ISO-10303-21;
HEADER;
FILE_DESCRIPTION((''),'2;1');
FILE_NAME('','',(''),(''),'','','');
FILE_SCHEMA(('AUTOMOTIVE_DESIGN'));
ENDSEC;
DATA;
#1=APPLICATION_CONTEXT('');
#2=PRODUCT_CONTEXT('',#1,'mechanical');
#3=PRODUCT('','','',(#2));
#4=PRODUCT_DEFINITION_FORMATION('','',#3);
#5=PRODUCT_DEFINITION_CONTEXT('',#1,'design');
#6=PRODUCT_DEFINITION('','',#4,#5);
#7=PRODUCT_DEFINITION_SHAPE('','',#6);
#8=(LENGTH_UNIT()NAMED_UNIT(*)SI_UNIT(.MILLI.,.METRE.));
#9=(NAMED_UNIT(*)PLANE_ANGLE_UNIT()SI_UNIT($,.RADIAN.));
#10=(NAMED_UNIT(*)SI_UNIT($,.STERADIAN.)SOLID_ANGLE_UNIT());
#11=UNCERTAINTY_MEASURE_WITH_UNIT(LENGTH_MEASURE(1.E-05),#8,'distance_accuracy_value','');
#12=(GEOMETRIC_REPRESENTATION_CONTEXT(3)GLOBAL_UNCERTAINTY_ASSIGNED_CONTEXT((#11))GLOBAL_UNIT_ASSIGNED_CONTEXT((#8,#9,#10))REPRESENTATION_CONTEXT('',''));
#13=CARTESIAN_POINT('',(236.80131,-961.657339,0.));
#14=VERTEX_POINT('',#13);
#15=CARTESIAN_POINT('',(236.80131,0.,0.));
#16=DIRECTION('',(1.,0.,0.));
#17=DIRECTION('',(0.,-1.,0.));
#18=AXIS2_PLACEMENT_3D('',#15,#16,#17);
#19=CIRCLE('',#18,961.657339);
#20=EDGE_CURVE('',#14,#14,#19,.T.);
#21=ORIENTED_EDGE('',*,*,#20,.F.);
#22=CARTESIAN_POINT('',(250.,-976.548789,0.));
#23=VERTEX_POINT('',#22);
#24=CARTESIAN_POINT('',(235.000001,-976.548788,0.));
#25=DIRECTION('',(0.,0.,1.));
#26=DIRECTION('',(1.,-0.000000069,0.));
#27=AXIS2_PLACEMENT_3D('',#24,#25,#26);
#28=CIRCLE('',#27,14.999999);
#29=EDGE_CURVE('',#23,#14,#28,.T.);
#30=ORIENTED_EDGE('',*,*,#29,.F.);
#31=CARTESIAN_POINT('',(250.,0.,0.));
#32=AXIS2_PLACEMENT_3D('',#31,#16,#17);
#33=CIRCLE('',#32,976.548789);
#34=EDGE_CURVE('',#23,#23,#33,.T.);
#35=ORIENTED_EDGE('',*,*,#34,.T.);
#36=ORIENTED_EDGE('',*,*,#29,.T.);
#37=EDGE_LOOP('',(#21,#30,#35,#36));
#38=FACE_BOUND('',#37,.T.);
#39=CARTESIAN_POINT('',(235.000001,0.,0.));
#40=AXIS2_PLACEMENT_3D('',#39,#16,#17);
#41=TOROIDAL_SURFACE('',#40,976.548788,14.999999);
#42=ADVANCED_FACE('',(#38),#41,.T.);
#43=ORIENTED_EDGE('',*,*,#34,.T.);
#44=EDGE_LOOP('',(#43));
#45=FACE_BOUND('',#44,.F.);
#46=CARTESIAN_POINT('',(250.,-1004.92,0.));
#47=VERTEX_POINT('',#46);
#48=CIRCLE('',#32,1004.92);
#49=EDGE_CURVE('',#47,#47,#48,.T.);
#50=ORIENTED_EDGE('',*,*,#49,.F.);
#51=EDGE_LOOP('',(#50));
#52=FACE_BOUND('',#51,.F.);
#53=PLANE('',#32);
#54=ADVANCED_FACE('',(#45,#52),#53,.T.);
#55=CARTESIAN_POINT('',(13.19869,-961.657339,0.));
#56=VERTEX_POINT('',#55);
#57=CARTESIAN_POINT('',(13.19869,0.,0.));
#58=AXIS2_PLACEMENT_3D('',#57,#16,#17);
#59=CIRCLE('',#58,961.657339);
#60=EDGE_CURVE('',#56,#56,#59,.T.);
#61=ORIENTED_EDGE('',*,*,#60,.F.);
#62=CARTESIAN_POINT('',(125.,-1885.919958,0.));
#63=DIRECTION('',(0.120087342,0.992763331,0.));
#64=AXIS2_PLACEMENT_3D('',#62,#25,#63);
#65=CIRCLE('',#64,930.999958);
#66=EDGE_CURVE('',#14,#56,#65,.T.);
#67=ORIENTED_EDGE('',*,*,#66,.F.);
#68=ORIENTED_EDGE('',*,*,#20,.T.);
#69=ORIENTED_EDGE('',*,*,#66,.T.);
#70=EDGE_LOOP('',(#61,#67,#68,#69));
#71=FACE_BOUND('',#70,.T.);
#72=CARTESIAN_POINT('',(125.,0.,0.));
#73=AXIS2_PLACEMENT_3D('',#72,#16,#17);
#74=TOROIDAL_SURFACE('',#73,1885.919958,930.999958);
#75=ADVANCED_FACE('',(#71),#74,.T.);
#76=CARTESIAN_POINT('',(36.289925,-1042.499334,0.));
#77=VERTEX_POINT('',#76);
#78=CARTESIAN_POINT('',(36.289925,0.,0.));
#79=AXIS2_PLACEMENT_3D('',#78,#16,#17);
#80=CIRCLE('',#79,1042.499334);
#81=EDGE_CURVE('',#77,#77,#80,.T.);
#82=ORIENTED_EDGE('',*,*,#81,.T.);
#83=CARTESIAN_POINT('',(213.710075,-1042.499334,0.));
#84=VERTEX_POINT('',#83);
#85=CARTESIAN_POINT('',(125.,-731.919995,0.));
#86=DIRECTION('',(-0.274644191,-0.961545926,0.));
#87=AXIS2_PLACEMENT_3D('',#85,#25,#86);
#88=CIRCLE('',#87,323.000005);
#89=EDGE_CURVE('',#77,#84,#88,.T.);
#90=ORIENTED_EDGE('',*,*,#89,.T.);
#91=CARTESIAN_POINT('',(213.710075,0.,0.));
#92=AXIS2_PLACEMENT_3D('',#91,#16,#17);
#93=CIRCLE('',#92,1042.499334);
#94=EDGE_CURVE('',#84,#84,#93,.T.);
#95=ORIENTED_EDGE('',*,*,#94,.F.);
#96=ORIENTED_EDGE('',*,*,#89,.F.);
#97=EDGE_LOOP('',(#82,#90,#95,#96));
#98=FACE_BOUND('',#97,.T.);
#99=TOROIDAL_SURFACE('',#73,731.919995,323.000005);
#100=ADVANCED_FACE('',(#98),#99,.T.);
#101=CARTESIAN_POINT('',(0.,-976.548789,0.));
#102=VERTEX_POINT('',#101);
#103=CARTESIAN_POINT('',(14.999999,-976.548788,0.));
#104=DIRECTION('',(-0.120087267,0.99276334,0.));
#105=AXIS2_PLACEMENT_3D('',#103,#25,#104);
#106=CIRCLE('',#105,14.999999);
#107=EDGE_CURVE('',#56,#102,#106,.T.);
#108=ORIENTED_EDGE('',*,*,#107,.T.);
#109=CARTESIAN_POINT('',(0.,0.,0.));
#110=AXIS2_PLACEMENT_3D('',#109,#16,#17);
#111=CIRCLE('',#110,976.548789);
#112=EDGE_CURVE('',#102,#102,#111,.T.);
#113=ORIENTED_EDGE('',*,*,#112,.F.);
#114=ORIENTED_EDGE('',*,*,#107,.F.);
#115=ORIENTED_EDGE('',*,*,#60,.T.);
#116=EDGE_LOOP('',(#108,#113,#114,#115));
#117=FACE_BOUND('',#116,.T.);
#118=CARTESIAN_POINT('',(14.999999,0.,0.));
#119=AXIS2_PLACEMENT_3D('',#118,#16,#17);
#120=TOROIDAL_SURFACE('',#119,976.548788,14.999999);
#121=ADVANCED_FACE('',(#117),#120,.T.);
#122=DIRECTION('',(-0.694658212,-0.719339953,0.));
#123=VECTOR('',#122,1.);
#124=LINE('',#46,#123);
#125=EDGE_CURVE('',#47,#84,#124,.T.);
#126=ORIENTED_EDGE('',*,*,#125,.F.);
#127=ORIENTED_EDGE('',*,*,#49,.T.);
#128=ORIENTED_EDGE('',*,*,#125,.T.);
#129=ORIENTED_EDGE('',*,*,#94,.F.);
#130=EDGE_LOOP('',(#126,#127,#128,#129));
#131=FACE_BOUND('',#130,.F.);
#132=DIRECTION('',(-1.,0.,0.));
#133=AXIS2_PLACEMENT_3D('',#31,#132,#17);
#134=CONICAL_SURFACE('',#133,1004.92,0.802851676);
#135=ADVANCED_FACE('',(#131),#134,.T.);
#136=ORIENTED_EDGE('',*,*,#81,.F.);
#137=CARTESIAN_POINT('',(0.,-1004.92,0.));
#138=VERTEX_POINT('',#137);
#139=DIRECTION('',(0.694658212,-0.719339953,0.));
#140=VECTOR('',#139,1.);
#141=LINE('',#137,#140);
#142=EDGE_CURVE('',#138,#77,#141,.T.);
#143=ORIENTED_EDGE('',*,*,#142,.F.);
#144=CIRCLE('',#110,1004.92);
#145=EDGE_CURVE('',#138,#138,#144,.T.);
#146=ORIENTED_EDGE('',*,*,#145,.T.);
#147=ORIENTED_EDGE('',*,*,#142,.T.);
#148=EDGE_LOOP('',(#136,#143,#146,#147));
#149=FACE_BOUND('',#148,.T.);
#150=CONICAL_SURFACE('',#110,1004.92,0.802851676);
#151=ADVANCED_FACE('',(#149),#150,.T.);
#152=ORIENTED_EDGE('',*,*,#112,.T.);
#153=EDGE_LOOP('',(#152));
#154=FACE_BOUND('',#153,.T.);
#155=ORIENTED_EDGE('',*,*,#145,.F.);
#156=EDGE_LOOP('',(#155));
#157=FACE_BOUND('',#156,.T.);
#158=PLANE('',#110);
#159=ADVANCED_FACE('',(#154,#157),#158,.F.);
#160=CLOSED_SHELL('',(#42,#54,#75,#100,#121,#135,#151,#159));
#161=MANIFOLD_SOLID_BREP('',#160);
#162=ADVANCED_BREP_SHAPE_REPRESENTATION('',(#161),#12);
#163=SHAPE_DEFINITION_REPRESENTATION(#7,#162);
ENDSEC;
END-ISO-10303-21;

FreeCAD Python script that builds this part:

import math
import FreeCAD as App
import Part
import Sketcher

V = App.Vector
Q = App.Units.Quantity

doc = App.newDocument("Part")
body = doc.addObject("PartDesign::Body", "Body")

# Sketch on XY plane
sketch1 = body.newObject("Sketcher::SketchObject", "Sketch")
sketch1.AttachmentSupport = (doc.getObject("XY_Plane"), [""])
sketch1.MapMode = "FlatFace"
sketch1.addGeometry([
    Part.LineSegment(V(250, -1005, 0), V(250, -977, 0)),  # 0
    Part.ArcOfCircle(Part.Circle(V(235, -977, 0), V(0, 0, 1), 15), math.radians(0), math.radians(83)),  # 1
    Part.ArcOfCircle(Part.Circle(V(125, -1886, 0), V(0, 0, 1), 931), math.radians(83.1), math.radians(96.9)),  # 2
    Part.ArcOfCircle(Part.Circle(V(15, -977, 0), V(0, 0, 1), 15), math.radians(97), math.radians(180)),  # 3
    Part.LineSegment(V(0, -977, 0), V(0, -1005, 0)),  # 4
    Part.LineSegment(V(0, -1005, 0), V(36, -1042, 0)),  # 5
    Part.ArcOfCircle(Part.Circle(V(125, -732, 0), V(0, 0, 1), 323), math.radians(-106), math.radians(-74)),  # 6
    Part.LineSegment(V(214, -1042, 0), V(250, -1005, 0)),  # 7
], False)
sketch1.addConstraint([
    Sketcher.Constraint("Tangent", 0, 2, 1, 1),
    Sketcher.Constraint("Tangent", 1, 2, 2, 1),
    Sketcher.Constraint("Tangent", 2, 2, 3, 1),
    Sketcher.Constraint("Tangent", 3, 2, 4, 1),
    Sketcher.Constraint("Coincident", 4, 2, 5, 1),
    Sketcher.Constraint("Coincident", 5, 2, 6, 1),
    Sketcher.Constraint("Coincident", 6, 2, 7, 1),
    Sketcher.Constraint("Coincident", 7, 2, 0, 1),
    Sketcher.Constraint("Vertical", 0),
    Sketcher.Constraint("Vertical", 4),
    Sketcher.Constraint("Equal", 1, 3),
    Sketcher.Constraint("PointOnObject", 3, 2, -2),
    Sketcher.Constraint("Horizontal", 1, 3, 3, 3),
    Sketcher.Constraint("Horizontal", 5, 2, 6, 2),
    Sketcher.Constraint("Horizontal", 4, 2, 7, 2),
    Sketcher.Constraint("Vertical", 2, 3, 6, 3),
    Sketcher.Constraint("Radius", 1, Q("14.999999 mm")),
    Sketcher.Constraint("Angle", 5, Q("-46.000013 deg")),
    Sketcher.Constraint("DistanceX", -1, 1, 1, 3, Q("235.000001 mm")),
    Sketcher.Constraint("DistanceY", 4, 2, -1, 1, Q("1004.92 mm")),
    Sketcher.Constraint("Radius", 2, Q("930.999958 mm")),
    Sketcher.Constraint("Radius", 6, Q("323.000005 mm")),
    Sketcher.Constraint("DistanceY", 0, 1, 0, 2, Q("28.371211 mm")),
    Sketcher.Constraint("Distance", 5, Q("52.241411 mm")),
])
revolution = body.newObject("PartDesign::Revolution", "Revolution")
revolution.Profile = sketch1
revolution.ReferenceAxis = (sketch1, ["H_Axis"])
revolution.Angle = 360

doc.recompute()
